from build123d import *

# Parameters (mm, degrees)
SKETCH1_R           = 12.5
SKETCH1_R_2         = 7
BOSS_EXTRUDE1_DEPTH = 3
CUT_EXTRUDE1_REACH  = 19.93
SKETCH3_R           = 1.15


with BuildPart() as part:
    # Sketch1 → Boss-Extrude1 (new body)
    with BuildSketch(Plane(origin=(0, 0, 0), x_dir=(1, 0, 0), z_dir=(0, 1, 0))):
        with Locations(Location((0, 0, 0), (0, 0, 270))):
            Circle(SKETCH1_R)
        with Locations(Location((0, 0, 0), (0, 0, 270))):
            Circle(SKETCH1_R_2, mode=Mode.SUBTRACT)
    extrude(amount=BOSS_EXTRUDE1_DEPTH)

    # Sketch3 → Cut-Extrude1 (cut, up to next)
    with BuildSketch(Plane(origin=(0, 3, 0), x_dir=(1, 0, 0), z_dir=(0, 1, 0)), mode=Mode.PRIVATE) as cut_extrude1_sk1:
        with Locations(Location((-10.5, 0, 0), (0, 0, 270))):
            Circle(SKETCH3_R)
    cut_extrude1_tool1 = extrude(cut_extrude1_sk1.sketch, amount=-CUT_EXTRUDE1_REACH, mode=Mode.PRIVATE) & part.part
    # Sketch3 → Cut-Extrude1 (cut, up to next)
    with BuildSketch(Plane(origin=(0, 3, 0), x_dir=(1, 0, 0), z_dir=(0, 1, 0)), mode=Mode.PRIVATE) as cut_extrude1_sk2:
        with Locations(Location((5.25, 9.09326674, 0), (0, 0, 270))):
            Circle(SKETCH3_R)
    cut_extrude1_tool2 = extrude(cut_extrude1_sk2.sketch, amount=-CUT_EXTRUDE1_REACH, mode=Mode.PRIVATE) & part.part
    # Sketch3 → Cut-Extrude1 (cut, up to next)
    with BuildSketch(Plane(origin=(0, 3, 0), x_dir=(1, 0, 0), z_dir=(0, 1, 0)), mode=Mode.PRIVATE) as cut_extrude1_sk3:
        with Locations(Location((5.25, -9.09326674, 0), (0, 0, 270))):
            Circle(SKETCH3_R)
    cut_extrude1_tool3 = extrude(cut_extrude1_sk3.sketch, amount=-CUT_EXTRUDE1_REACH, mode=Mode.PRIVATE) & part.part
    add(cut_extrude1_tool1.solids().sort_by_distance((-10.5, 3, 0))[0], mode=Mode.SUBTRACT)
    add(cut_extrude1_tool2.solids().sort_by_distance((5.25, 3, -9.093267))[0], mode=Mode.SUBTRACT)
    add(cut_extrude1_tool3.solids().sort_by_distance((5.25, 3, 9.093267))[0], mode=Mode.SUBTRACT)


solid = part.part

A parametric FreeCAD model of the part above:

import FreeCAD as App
import Part
import Sketcher

doc = App.newDocument("Part")
params = doc.addObject("Spreadsheet::Sheet", "Params")
for row, (alias, value) in enumerate([
    ("sketch1_diameter", "25 mm"),
    ("sketch1_diameter2", "14 mm"),
    ("pad1_length", "3 mm"),
    ("sketch2_diameter", "2.3 mm"),
    ("sketch3_diameter", "2.3 mm"),
    ("sketch4_diameter", "2.3 mm"),
], start=1):
    params.set(f"A{row}", alias)
    params.set(f"B{row}", "=" + value)
    params.setAlias(f"B{row}", alias)

body = doc.addObject("PartDesign::Body", "Body")

# Sketch on XZ plane
sketch1 = body.newObject("Sketcher::SketchObject", "Sketch")
sketch1.AttachmentSupport = (doc.getObject("XZ_Plane"), [""])
sketch1.MapMode = "FlatFace"
sketch1.addGeometry([
    Part.Circle(App.Vector(0, 0, 0), App.Vector(0, 0, 1), 12.5),
    Part.Circle(App.Vector(0, 0, 0), App.Vector(0, 0, 1), 7),
], False)
sketch1.addConstraint([
    Sketcher.Constraint("Coincident", 0, 3, -1, 1),
    Sketcher.Constraint("Coincident", 1, 3, -1, 1),
    Sketcher.Constraint("Diameter", 0, 25.0),
    Sketcher.Constraint("Diameter", 1, 14.0),
])
sketch1.setExpression("Constraints[2]", "Params.sketch1_diameter")
sketch1.setExpression("Constraints[3]", "Params.sketch1_diameter2")
pad1 = body.newObject("PartDesign::Pad", "Pad")
pad1.Profile = sketch1
pad1.setExpression("Length", "Params.pad1_length")
pad1.Reversed = True

# Sketch on XZ plane
sketch2 = body.newObject("Sketcher::SketchObject", "Sketch001")
sketch2.AttachmentSupport = (doc.getObject("XZ_Plane"), [""])
sketch2.MapMode = "FlatFace"
sketch2.AttachmentOffset = App.Placement(App.Vector(0, 0, -3), App.Rotation())
sketch2.addGeometry(Part.Circle(App.Vector(-10.5, 0, 0), App.Vector(0, 0, 1), 1.15), False)
sketch2.addConstraint([
    Sketcher.Constraint("PointOnObject", 0, 3, -1),
    Sketcher.Constraint("Diameter", 0, 2.3),
    Sketcher.Constraint("DistanceX", 0, 3, -1, 1, 10.5),
])
sketch2.setExpression("Constraints[1]", "Params.sketch2_diameter")
pocket1 = body.newObject("PartDesign::Pocket", "Pocket")
pocket1.Profile = sketch2
pocket1.Type = "UpToFirst"
pocket1.Reversed = True

# Sketch on XZ plane
sketch3 = body.newObject("Sketcher::SketchObject", "Sketch002")
sketch3.AttachmentSupport = (doc.getObject("XZ_Plane"), [""])
sketch3.MapMode = "FlatFace"
sketch3.AttachmentOffset = App.Placement(App.Vector(0, 0, -3), App.Rotation())
sketch3.addGeometry(Part.Circle(App.Vector(5.25, -9.093267, 0), App.Vector(0, 0, 1), 1.15), False)
sketch3.addConstraint([
    Sketcher.Constraint("Diameter", 0, 2.3),
    Sketcher.Constraint("DistanceX", -1, 1, 0, 3, 5.25),
    Sketcher.Constraint("DistanceY", 0, 3, -1, 1, 9.093267),
])
sketch3.setExpression("Constraints[0]", "Params.sketch3_diameter")
pocket2 = body.newObject("PartDesign::Pocket", "Pocket001")
pocket2.Profile = sketch3
pocket2.Type = "UpToFirst"
pocket2.Reversed = True

# Sketch on XZ plane
sketch4 = body.newObject("Sketcher::SketchObject", "Sketch003")
sketch4.AttachmentSupport = (doc.getObject("XZ_Plane"), [""])
sketch4.MapMode = "FlatFace"
sketch4.AttachmentOffset = App.Placement(App.Vector(0, 0, -3), App.Rotation())
sketch4.addGeometry(Part.Circle(App.Vector(5.25, 9.093267, 0), App.Vector(0, 0, 1), 1.15), False)
sketch4.addConstraint([
    Sketcher.Constraint("Diameter", 0, 2.3),
    Sketcher.Constraint("DistanceX", -1, 1, 0, 3, 5.25),
    Sketcher.Constraint("DistanceY", -1, 1, 0, 3, 9.093267),
])
sketch4.setExpression("Constraints[0]", "Params.sketch4_diameter")
pocket3 = body.newObject("PartDesign::Pocket", "Pocket002")
pocket3.Profile = sketch4
pocket3.Type = "UpToFirst"
pocket3.Reversed = True

doc.recompute()
